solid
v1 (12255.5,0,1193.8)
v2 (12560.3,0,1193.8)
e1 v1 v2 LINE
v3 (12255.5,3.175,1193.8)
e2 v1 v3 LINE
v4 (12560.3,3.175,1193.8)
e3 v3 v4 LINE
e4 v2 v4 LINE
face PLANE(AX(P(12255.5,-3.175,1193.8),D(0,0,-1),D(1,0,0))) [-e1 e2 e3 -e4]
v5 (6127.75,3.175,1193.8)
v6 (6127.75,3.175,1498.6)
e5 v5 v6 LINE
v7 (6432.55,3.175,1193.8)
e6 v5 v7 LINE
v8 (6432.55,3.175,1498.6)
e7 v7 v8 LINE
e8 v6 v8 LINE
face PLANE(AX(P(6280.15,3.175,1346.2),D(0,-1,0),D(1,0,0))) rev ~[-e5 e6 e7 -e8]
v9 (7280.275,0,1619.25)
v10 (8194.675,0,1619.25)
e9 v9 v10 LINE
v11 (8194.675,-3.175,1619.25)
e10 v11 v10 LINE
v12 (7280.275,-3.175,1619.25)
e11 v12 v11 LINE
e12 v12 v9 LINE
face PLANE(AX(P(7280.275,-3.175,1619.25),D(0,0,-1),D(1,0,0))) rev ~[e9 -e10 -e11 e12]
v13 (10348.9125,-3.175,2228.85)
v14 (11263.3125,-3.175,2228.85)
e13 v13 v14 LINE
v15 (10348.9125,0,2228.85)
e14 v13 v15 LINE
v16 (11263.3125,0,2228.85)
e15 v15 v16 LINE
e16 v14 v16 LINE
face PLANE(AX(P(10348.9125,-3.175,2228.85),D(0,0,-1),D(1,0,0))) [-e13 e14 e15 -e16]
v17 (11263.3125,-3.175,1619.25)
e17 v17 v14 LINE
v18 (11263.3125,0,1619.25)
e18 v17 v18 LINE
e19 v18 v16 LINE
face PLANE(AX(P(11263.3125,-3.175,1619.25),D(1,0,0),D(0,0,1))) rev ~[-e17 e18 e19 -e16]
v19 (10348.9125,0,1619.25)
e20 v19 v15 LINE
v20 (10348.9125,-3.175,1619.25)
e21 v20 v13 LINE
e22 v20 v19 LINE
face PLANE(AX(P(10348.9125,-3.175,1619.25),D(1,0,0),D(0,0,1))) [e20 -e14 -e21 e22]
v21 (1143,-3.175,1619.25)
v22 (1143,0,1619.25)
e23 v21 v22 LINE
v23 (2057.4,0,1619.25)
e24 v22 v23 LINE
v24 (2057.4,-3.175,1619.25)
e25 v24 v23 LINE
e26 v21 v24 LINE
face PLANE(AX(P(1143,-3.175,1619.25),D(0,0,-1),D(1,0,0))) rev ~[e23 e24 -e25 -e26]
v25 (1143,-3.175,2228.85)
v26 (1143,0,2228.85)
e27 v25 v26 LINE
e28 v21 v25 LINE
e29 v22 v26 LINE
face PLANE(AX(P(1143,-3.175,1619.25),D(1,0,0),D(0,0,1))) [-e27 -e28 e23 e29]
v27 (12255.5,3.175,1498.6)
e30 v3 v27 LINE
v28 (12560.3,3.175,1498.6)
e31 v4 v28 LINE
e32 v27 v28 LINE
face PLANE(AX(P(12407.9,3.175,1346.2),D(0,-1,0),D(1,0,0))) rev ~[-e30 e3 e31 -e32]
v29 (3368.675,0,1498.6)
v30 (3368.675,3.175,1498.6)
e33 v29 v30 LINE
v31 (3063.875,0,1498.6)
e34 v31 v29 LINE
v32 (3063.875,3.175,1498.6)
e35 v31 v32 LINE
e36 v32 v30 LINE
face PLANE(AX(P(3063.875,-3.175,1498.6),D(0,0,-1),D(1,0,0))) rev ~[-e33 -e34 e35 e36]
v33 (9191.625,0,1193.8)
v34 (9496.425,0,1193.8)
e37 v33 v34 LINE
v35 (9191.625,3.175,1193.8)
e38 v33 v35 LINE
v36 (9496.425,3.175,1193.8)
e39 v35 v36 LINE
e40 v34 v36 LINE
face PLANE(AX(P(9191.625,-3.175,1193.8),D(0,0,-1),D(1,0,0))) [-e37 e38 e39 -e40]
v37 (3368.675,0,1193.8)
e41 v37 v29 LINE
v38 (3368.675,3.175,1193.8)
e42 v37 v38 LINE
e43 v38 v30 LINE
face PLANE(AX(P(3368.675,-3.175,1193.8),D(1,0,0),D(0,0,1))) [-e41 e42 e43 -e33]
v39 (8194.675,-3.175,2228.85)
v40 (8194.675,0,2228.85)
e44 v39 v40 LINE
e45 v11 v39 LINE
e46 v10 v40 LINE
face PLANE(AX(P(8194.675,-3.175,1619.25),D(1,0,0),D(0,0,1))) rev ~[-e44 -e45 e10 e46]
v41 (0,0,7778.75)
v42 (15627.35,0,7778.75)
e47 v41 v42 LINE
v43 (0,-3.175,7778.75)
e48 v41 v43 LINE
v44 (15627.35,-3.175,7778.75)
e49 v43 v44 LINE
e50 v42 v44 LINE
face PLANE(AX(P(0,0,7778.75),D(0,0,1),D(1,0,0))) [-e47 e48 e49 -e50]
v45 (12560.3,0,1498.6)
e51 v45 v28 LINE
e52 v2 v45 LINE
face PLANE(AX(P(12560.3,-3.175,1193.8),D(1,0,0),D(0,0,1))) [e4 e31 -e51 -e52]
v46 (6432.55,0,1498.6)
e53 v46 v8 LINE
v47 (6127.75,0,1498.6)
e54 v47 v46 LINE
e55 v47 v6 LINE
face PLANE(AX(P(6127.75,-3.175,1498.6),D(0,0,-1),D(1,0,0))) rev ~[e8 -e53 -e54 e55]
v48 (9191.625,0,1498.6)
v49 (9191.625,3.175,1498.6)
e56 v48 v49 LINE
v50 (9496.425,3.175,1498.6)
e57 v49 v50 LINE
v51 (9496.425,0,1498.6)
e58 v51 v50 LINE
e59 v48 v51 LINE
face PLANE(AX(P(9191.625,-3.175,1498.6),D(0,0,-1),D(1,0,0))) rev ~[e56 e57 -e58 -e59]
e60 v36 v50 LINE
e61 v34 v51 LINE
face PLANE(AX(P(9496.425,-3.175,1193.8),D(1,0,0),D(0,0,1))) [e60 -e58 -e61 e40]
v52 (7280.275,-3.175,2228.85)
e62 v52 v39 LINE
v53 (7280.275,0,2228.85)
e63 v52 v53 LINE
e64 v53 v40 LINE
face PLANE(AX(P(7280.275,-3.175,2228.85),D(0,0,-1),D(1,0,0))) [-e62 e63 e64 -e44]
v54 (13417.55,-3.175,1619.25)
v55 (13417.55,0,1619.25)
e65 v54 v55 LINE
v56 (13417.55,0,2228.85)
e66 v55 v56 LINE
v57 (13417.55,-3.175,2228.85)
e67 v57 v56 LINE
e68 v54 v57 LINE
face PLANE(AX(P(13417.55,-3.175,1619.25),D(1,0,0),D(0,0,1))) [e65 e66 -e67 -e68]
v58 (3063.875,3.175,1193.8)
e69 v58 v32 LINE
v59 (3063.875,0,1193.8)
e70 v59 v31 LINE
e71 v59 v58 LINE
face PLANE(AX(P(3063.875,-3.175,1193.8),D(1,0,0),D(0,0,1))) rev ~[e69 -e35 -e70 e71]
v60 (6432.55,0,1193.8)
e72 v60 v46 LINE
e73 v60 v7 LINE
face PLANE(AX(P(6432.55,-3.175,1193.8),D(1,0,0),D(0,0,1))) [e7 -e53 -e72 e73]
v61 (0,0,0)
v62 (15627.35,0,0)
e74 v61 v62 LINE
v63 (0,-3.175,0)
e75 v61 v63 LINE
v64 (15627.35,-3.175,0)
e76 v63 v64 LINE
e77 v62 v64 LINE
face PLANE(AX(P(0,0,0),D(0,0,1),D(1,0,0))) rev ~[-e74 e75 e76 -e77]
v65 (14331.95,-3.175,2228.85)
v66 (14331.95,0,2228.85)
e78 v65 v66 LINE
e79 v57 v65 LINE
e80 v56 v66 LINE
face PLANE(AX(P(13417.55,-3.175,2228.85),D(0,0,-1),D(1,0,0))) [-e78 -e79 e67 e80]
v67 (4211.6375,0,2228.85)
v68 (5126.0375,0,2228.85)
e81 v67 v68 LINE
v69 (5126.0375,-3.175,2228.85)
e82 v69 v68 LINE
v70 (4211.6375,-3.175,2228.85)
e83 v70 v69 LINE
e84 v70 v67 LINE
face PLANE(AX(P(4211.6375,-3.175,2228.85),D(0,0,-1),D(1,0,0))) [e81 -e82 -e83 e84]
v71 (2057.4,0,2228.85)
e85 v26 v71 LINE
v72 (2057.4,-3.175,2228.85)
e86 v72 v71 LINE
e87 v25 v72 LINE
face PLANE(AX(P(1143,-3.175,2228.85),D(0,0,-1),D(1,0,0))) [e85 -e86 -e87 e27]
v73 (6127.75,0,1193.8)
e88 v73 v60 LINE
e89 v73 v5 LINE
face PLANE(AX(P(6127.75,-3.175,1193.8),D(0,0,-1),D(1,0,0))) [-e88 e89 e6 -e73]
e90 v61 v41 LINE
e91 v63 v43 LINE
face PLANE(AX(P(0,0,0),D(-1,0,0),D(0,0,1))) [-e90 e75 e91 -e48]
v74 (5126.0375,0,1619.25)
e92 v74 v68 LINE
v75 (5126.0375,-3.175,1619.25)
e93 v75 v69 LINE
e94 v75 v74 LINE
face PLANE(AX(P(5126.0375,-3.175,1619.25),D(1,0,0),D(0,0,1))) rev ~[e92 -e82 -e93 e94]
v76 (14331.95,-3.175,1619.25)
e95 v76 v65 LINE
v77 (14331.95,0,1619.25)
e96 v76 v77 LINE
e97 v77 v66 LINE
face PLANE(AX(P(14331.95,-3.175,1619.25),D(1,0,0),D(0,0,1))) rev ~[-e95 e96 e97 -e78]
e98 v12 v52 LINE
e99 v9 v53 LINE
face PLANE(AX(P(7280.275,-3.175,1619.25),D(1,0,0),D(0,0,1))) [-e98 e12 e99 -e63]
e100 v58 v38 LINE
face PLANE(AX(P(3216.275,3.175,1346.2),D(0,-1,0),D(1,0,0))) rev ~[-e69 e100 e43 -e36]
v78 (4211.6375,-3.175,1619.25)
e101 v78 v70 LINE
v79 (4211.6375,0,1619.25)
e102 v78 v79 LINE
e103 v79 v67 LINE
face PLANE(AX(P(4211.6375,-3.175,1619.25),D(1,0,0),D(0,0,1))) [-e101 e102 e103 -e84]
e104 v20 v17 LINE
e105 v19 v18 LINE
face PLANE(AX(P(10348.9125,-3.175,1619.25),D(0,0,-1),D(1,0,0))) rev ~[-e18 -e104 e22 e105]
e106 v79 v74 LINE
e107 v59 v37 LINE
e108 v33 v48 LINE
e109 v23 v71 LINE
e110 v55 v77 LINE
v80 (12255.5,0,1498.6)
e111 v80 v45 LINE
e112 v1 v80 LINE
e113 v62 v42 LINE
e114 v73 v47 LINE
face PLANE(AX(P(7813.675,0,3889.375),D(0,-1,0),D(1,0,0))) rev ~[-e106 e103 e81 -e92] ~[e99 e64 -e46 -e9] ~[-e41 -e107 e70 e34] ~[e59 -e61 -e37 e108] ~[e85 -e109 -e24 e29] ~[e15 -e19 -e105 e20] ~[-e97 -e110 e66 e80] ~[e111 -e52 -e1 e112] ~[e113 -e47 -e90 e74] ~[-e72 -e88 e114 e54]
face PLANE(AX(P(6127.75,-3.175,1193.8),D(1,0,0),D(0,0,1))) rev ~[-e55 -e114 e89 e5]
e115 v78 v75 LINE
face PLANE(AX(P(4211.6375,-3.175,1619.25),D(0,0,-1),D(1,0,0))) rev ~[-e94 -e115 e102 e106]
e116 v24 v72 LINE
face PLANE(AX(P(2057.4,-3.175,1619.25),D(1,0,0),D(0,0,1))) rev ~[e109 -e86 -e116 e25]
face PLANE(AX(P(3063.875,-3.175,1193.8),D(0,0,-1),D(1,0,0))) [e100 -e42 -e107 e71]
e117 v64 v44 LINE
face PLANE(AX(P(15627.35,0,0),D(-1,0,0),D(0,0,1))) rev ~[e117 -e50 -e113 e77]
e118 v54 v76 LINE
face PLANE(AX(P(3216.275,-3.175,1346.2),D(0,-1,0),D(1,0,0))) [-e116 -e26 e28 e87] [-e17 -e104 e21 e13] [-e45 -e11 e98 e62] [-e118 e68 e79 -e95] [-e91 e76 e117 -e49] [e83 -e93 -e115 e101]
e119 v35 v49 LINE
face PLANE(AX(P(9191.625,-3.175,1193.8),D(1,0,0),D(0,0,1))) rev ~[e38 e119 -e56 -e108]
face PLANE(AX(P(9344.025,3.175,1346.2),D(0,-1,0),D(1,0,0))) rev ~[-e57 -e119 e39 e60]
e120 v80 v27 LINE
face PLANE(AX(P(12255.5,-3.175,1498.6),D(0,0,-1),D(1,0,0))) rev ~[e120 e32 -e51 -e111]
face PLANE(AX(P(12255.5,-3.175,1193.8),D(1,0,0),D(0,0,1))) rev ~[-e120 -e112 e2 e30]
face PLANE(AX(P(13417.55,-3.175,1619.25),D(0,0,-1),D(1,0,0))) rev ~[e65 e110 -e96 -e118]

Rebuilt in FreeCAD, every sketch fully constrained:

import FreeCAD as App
import Part
import Sketcher
from FreeCAD import Vector
Q = App.Units.Quantity


def add_polygon(sketch, points):
    """Adds a closed chain of lines whose ends are joined by coincident constraints."""
    first, n = sketch.GeometryCount, len(points)
    for a, b in zip(points, points[1:] + points[:1]):
        sketch.addGeometry(Part.LineSegment(App.Vector(*a, 0), App.Vector(*b, 0)), False)
    for i in range(n):
        sketch.addConstraint(Sketcher.Constraint("Coincident", first + i, 2, first + (i + 1) % n, 1))

doc = App.newDocument("Part")
params = doc.addObject("Spreadsheet::Sheet", "Params")
for row, (alias, value) in enumerate([
    ("sketch1_width", "615.25 in"),
    ("sketch1_height", "306.25 in"),
    ("pad1_length", "0.125 in"),
    ("sketch2_width", "36 in"),
    ("sketch2_height", "24 in"),
    ("sketch3_width", "12 in"),
    ("pad2_length", "0.25 in"),
], start=1):
    params.set(f"A{row}", alias)
    params.set(f"B{row}", "=" + value)
    params.setAlias(f"B{row}", alias)

body = doc.addObject("PartDesign::Body", "Body")

sketch1 = body.newObject("Sketcher::SketchObject", "Sketch")
sketch1.AttachmentSupport = (doc.getObject("XZ_Plane"), [""])
sketch1.MapMode = "FlatFace"
add_polygon(sketch1, [(0, 7778.75), (0, 0), (15627.35, 0), (15627.35, 7778.75)])
sketch1.addConstraint([
    Sketcher.Constraint("Vertical", 0),
    Sketcher.Constraint("Horizontal", 1),
    Sketcher.Constraint("Vertical", 2),
    Sketcher.Constraint("Horizontal", 3),
    Sketcher.Constraint("Coincident", 0, 2, -1, 1),
    Sketcher.Constraint("DistanceX", 1, 1, 1, 2, Q("615.25 in")),
    Sketcher.Constraint("DistanceY", 0, 2, 0, 1, Q("306.25 in")),
])
sketch1.setExpression("Constraints[9]", "Params.sketch1_width")
sketch1.setExpression("Constraints[10]", "Params.sketch1_height")
pad1 = body.newObject("PartDesign::Pad", "Pad")
pad1.Profile = sketch1
pad1.setExpression("Length", "Params.pad1_length")

sketch2 = body.newObject("Sketcher::SketchObject", "Sketch001")
sketch2.AttachmentSupport = (doc.getObject("XZ_Plane"), [""])
sketch2.MapMode = "FlatFace"
sketch2.AttachmentOffset = App.Placement(Vector(0, 0, 0.125 * 25.4), App.Rotation())
add_polygon(sketch2, [(1143, 2228.85), (1143, 1619.25), (2057.4, 1619.25), (2057.4, 2228.85)])
add_polygon(sketch2, [(4211.6375, 2228.85), (4211.6375, 1619.25), (5126.0375, 1619.25), (5126.0375, 2228.85)])
add_polygon(sketch2, [(7280.275, 2228.85), (7280.275, 1619.25), (8194.675, 1619.25), (8194.675, 2228.85)])
add_polygon(sketch2, [(10348.9125, 2228.85), (10348.9125, 1619.25), (11263.3125, 1619.25), (11263.3125, 2228.85)])
add_polygon(sketch2, [(13417.55, 2228.85), (13417.55, 1619.25), (14331.95, 1619.25), (14331.95, 2228.85)])
sketch2.addConstraint([
    Sketcher.Constraint("Vertical", 0),
    Sketcher.Constraint("Horizontal", 1),
    Sketcher.Constraint("Vertical", 2),
    Sketcher.Constraint("Horizontal", 3),
    Sketcher.Constraint("Vertical", 4),
    Sketcher.Constraint("Horizontal", 5),
    Sketcher.Constraint("Vertical", 6),
    Sketcher.Constraint("Horizontal", 7),
    Sketcher.Constraint("Vertical", 8),
    Sketcher.Constraint("Horizontal", 9),
    Sketcher.Constraint("Vertical", 10),
    Sketcher.Constraint("Horizontal", 11),
    Sketcher.Constraint("Vertical", 12),
    Sketcher.Constraint("Horizontal", 13),
    Sketcher.Constraint("Vertical", 14),
    Sketcher.Constraint("Horizontal", 15),
    Sketcher.Constraint("Vertical", 16),
    Sketcher.Constraint("Horizontal", 17),
    Sketcher.Constraint("Vertical", 18),
    Sketcher.Constraint("Horizontal", 19),
    Sketcher.Constraint("Horizontal", 1, 2, 4, 2),
    Sketcher.Constraint("Horizontal", 3, 2, 6, 2),
    Sketcher.Constraint("Horizontal", 5, 2, 8, 2),
    Sketcher.Constraint("Horizontal", 7, 2, 10, 2),
    Sketcher.Constraint("Horizontal", 9, 2, 12, 2),
    Sketcher.Constraint("Horizontal", 11, 2, 14, 2),
    Sketcher.Constraint("Horizontal", 13, 2, 16, 2),
    Sketcher.Constraint("Horizontal", 15, 2, 18, 2),
    Sketcher.Constraint("Equal", 3, 5),
    Sketcher.Constraint("Equal", 7, 9),
    Sketcher.Constraint("Equal", 11, 13),
    Sketcher.Constraint("Equal", 15, 17),
    Sketcher.Constraint("DistanceX", 1, 1, 1, 2, Q("36 in")),
    Sketcher.Constraint("DistanceY", 0, 2, 0, 1, Q("24 in")),
    Sketcher.Constraint("DistanceX", -1, 1, 0, 2, Q("45 in")),
    Sketcher.Constraint("DistanceY", -1, 1, 0, 2, Q("63.75 in")),
    Sketcher.Constraint("DistanceX", -1, 1, 16, 2, Q("528.25 in")),
    Sketcher.Constraint("DistanceX", -1, 1, 4, 2, Q("165.8125 in")),
    Sketcher.Constraint("DistanceX", -1, 1, 8, 2, Q("286.625 in")),
    Sketcher.Constraint("DistanceX", -1, 1, 12, 2, Q("407.4375 in")),
])
sketch2.setExpression("Constraints[52]", "Params.sketch2_width")
sketch2.setExpression("Constraints[53]", "Params.sketch2_height")
pocket1 = body.newObject("PartDesign::Pocket", "Pocket")
pocket1.Profile = sketch2
pocket1.Type = "ThroughAll"

sketch3 = body.newObject("Sketcher::SketchObject", "Sketch002")
sketch3.AttachmentSupport = (doc.getObject("XZ_Plane"), [""])
sketch3.MapMode = "FlatFace"
sketch3.AttachmentOffset = App.Placement(Vector(0, 0, 0.125 * 25.4), App.Rotation())
add_polygon(sketch3, [(3063.875, 1498.6), (3063.875, 1193.8), (3368.675, 1193.8), (3368.675, 1498.6)])
add_polygon(sketch3, [(6127.75, 1498.6), (6127.75, 1193.8), (6432.55, 1193.8), (6432.55, 1498.6)])
add_polygon(sketch3, [(9191.625, 1498.6), (9191.625, 1193.8), (9496.425, 1193.8), (9496.425, 1498.6)])
add_polygon(sketch3, [(12255.5, 1498.6), (12255.5, 1193.8), (12560.3, 1193.8), (12560.3, 1498.6)])
sketch3.addConstraint([
    Sketcher.Constraint("Vertical", 0),
    Sketcher.Constraint("Horizontal", 1),
    Sketcher.Constraint("Vertical", 2),
    Sketcher.Constraint("Horizontal", 3),
    Sketcher.Constraint("Vertical", 4),
    Sketcher.Constraint("Horizontal", 5),
    Sketcher.Constraint("Vertical", 6),
    Sketcher.Constraint("Horizontal", 7),
    Sketcher.Constraint("Vertical", 8),
    Sketcher.Constraint("Horizontal", 9),
    Sketcher.Constraint("Vertical", 10),
    Sketcher.Constraint("Horizontal", 11),
    Sketcher.Constraint("Vertical", 12),
    Sketcher.Constraint("Horizontal", 13),
    Sketcher.Constraint("Vertical", 14),
    Sketcher.Constraint("Horizontal", 15),
    Sketcher.Constraint("Horizontal", 1, 2, 4, 2),
    Sketcher.Constraint("Horizontal", 3, 2, 6, 2),
    Sketcher.Constraint("Horizontal", 5, 2, 8, 2),
    Sketcher.Constraint("Horizontal", 7, 2, 10, 2),
    Sketcher.Constraint("Horizontal", 9, 2, 12, 2),
    Sketcher.Constraint("Horizontal", 11, 2, 14, 2),
    Sketcher.Constraint("Equal", 3, 5),
    Sketcher.Constraint("Equal", 7, 9),
    Sketcher.Constraint("Equal", 11, 13),
    Sketcher.Constraint("Equal", 15, 0),
    Sketcher.Constraint("DistanceX", 1, 1, 1, 2, Q("12 in")),
    Sketcher.Constraint("DistanceY", -1, 1, 0, 2, Q("47 in")),
    Sketcher.Constraint("DistanceX", -1, 1, 12, 2, Q("482.5 in")),
    Sketcher.Constraint("DistanceX", -1, 1, 4, 2, Q("241.25 in")),
    Sketcher.Constraint("DistanceX", 1, 2, 8, 2, Q("229.25 in")),
    Sketcher.Constraint("DistanceX", -1, 1, 0, 2, Q("120.625 in")),
])
sketch3.setExpression("Constraints[42]", "Params.sketch3_width")
pad2 = body.newObject("PartDesign::Pad", "Pad001")
pad2.Profile = sketch3
pad2.setExpression("Length", "Params.pad2_length")
pad2.Reversed = True

doc.recompute()
